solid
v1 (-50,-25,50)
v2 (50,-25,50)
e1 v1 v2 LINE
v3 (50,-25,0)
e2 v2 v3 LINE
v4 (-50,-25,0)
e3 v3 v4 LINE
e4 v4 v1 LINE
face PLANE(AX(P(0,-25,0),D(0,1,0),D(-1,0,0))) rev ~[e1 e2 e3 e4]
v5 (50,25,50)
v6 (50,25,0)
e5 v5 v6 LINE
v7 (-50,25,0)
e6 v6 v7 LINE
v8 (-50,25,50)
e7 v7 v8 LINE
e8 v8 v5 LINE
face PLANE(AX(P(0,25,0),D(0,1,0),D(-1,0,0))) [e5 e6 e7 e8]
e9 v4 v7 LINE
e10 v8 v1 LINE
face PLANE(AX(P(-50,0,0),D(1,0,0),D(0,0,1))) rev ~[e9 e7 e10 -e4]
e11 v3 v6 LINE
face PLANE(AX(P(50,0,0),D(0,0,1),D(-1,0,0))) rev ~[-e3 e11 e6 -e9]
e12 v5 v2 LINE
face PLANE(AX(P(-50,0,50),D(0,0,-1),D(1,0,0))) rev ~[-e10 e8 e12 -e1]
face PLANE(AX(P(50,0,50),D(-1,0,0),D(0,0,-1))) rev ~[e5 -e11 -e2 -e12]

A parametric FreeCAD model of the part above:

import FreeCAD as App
import Part
import Sketcher
from FreeCAD import Vector
Q = App.Units.Quantity

doc = App.newDocument("Part")
body = doc.addObject("PartDesign::Body", "Body")

# Sketch on XZ plane
sketch1 = body.newObject("Sketcher::SketchObject", "Sketch")
sketch1.AttachmentSupport = (doc.getObject("XZ_Plane"), [""])
sketch1.MapMode = "FlatFace"
sketch1.addGeometry(Part.LineSegment(Vector(50, 50, 0), Vector(50, 0, 0)), False)
sketch1.addGeometry(Part.LineSegment(Vector(50, 0, 0), Vector(-50, 0, 0)), False)
sketch1.addGeometry(Part.LineSegment(Vector(-50, 0, 0), Vector(-50, 50, 0)), False)
sketch1.addGeometry(Part.LineSegment(Vector(-50, 50, 0), Vector(50, 50, 0)), False)
sketch1.addConstraint(Sketcher.Constraint("Coincident", 0, 2, 1, 1))
sketch1.addConstraint(Sketcher.Constraint("Coincident", 1, 2, 2, 1))
sketch1.addConstraint(Sketcher.Constraint("Coincident", 2, 2, 3, 1))
sketch1.addConstraint(Sketcher.Constraint("Coincident", 3, 2, 0, 1))
sketch1.addConstraint(Sketcher.Constraint("Vertical", 0))
sketch1.addConstraint(Sketcher.Constraint("Horizontal", 1))
sketch1.addConstraint(Sketcher.Constraint("Vertical", 2))
sketch1.addConstraint(Sketcher.Constraint("Horizontal", 3))
sketch1.addConstraint(Sketcher.Constraint("Symmetric", 0, 2, 1, 2, -1, 1))
sketch1.addConstraint(Sketcher.Constraint("DistanceX", 1, 2, 1, 1, Q("100 mm")))
sketch1.addConstraint(Sketcher.Constraint("DistanceY", 0, 2, 0, 1, Q("50 mm")))
pad1 = body.newObject("PartDesign::Pad", "Pad")
pad1.Profile = sketch1
pad1.Length = 50
pad1.Midplane = True

doc.recompute()
